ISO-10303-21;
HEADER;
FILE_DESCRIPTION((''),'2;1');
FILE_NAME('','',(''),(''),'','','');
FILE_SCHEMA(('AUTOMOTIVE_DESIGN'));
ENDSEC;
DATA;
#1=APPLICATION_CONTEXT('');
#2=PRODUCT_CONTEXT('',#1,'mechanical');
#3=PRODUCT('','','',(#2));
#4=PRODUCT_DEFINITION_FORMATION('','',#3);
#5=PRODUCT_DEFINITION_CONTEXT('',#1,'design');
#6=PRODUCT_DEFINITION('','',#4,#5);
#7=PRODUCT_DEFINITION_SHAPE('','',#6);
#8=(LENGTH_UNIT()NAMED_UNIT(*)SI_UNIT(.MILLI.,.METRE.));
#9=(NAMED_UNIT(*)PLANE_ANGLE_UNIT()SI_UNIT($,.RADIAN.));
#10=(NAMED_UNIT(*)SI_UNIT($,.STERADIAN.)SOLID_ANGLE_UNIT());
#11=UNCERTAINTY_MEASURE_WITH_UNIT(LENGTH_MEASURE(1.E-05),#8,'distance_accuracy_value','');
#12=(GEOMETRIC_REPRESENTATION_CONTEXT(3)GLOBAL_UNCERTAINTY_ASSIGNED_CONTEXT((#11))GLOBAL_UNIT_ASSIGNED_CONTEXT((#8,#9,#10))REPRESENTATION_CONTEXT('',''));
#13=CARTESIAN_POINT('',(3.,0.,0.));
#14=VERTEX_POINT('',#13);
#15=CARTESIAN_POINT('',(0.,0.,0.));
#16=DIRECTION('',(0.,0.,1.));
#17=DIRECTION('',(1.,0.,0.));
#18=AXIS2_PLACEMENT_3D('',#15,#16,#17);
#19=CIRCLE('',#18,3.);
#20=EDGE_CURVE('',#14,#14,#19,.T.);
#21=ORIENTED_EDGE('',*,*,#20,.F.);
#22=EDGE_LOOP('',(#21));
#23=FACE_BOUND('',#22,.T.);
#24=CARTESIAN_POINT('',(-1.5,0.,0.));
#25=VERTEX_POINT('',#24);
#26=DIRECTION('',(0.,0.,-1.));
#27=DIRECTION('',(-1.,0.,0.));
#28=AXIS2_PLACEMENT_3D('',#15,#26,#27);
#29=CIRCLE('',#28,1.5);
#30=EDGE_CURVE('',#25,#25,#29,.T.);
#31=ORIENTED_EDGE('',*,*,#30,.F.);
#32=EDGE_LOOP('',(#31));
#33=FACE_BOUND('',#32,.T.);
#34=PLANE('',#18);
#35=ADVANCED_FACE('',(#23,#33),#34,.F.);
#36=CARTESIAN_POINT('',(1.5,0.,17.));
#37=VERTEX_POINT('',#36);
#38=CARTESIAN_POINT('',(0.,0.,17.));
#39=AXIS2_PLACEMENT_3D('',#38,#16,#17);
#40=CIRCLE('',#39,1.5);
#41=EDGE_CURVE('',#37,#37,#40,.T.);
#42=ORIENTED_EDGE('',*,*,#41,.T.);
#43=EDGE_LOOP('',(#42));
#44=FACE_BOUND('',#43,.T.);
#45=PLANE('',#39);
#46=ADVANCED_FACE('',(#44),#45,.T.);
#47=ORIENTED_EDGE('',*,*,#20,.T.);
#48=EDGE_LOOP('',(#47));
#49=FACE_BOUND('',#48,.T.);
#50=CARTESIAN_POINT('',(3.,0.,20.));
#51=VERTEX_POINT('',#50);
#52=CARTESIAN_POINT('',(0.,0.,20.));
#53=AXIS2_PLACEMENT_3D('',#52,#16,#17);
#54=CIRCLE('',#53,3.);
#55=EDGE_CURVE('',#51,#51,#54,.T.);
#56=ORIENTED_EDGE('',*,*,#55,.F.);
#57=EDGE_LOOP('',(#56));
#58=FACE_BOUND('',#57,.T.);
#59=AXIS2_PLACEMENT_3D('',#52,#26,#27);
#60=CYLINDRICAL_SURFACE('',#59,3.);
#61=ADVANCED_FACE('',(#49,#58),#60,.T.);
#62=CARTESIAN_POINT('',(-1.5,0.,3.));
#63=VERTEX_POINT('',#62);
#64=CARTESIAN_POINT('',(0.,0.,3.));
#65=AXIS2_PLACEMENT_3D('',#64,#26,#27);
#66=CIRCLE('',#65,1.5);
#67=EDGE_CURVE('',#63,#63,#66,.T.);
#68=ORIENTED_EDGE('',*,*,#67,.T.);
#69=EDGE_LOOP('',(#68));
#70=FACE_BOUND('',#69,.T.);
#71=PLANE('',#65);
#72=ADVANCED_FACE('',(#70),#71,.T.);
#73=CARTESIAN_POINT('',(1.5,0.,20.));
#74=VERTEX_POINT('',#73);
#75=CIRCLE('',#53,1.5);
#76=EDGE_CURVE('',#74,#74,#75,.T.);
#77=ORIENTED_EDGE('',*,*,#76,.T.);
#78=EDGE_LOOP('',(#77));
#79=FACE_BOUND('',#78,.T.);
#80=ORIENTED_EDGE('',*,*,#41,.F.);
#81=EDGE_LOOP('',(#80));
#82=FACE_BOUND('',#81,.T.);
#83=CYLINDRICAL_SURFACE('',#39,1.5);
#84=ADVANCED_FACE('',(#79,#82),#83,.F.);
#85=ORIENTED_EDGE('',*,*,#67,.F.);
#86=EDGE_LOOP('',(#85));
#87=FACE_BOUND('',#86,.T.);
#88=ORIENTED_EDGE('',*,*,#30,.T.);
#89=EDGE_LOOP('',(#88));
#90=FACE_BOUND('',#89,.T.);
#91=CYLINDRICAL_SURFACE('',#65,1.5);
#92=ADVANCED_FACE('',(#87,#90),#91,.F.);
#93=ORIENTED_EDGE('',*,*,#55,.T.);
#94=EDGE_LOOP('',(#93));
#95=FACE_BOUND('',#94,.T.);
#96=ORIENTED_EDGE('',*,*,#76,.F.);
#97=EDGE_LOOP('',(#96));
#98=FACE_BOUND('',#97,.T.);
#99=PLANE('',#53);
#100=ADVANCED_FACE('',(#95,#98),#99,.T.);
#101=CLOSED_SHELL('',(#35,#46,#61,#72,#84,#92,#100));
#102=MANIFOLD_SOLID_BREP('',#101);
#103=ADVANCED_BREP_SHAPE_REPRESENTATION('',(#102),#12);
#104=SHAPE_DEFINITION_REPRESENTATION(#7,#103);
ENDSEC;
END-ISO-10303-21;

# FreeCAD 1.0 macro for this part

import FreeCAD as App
import Part
import Sketcher

doc = App.newDocument("Part")
body = doc.addObject("PartDesign::Body", "Body")

sketch1 = doc.addObject("Sketcher::SketchObject", "Sketch")
body.addObject(sketch1)
sketch1.AttachmentSupport = (doc.XY_Plane, [""])
sketch1.MapMode = "FlatFace"
sketch1.addGeometry(Part.Circle(App.Vector(0, 0, 0), App.Vector(0, 0, 1), 3), False)
sketch1.addConstraint(Sketcher.Constraint("Coincident", 0, 3, -1, 1))
sketch1.addConstraint(Sketcher.Constraint("Diameter", 0, 6.0))
pad1 = doc.addObject("PartDesign::Pad", "Pad")
body.addObject(pad1)
pad1.Profile = sketch1
pad1.Length = 20

sketch2 = doc.addObject("Sketcher::SketchObject", "Sketch001")
body.addObject(sketch2)
sketch2.AttachmentSupport = (doc.XY_Plane, [""])
sketch2.MapMode = "FlatFace"
sketch2.AttachmentOffset = App.Placement(App.Vector(0, 0, 20), App.Rotation())
sketch2.addGeometry(Part.Circle(App.Vector(0, 0, 0), App.Vector(0, 0, 1), 1.5), False)
sketch2.addConstraint(Sketcher.Constraint("Coincident", 0, 3, -1, 1))
sketch2.addConstraint(Sketcher.Constraint("Diameter", 0, 3.0))
pocket1 = doc.addObject("PartDesign::Pocket", "Pocket")
body.addObject(pocket1)
pocket1.Profile = sketch2
pocket1.Length = 3

sketch3 = doc.addObject("Sketcher::SketchObject", "Sketch002")
body.addObject(sketch3)
sketch3.AttachmentSupport = (doc.XY_Plane, [""])
sketch3.MapMode = "FlatFace"
sketch3.AttachmentOffset = App.Placement(App.Vector(0, 0, 3), App.Rotation())
sketch3.addGeometry(Part.Circle(App.Vector(0, 0, 0), App.Vector(0, 0, 1), 1.5), False)
sketch3.addConstraint(Sketcher.Constraint("Coincident", 0, 3, -1, 1))
sketch3.addConstraint(Sketcher.Constraint("Diameter", 0, 3.0))
pocket2 = doc.addObject("PartDesign::Pocket", "Pocket001")
body.addObject(pocket2)
pocket2.Profile = sketch3
pocket2.Length = 3

doc.recompute()
